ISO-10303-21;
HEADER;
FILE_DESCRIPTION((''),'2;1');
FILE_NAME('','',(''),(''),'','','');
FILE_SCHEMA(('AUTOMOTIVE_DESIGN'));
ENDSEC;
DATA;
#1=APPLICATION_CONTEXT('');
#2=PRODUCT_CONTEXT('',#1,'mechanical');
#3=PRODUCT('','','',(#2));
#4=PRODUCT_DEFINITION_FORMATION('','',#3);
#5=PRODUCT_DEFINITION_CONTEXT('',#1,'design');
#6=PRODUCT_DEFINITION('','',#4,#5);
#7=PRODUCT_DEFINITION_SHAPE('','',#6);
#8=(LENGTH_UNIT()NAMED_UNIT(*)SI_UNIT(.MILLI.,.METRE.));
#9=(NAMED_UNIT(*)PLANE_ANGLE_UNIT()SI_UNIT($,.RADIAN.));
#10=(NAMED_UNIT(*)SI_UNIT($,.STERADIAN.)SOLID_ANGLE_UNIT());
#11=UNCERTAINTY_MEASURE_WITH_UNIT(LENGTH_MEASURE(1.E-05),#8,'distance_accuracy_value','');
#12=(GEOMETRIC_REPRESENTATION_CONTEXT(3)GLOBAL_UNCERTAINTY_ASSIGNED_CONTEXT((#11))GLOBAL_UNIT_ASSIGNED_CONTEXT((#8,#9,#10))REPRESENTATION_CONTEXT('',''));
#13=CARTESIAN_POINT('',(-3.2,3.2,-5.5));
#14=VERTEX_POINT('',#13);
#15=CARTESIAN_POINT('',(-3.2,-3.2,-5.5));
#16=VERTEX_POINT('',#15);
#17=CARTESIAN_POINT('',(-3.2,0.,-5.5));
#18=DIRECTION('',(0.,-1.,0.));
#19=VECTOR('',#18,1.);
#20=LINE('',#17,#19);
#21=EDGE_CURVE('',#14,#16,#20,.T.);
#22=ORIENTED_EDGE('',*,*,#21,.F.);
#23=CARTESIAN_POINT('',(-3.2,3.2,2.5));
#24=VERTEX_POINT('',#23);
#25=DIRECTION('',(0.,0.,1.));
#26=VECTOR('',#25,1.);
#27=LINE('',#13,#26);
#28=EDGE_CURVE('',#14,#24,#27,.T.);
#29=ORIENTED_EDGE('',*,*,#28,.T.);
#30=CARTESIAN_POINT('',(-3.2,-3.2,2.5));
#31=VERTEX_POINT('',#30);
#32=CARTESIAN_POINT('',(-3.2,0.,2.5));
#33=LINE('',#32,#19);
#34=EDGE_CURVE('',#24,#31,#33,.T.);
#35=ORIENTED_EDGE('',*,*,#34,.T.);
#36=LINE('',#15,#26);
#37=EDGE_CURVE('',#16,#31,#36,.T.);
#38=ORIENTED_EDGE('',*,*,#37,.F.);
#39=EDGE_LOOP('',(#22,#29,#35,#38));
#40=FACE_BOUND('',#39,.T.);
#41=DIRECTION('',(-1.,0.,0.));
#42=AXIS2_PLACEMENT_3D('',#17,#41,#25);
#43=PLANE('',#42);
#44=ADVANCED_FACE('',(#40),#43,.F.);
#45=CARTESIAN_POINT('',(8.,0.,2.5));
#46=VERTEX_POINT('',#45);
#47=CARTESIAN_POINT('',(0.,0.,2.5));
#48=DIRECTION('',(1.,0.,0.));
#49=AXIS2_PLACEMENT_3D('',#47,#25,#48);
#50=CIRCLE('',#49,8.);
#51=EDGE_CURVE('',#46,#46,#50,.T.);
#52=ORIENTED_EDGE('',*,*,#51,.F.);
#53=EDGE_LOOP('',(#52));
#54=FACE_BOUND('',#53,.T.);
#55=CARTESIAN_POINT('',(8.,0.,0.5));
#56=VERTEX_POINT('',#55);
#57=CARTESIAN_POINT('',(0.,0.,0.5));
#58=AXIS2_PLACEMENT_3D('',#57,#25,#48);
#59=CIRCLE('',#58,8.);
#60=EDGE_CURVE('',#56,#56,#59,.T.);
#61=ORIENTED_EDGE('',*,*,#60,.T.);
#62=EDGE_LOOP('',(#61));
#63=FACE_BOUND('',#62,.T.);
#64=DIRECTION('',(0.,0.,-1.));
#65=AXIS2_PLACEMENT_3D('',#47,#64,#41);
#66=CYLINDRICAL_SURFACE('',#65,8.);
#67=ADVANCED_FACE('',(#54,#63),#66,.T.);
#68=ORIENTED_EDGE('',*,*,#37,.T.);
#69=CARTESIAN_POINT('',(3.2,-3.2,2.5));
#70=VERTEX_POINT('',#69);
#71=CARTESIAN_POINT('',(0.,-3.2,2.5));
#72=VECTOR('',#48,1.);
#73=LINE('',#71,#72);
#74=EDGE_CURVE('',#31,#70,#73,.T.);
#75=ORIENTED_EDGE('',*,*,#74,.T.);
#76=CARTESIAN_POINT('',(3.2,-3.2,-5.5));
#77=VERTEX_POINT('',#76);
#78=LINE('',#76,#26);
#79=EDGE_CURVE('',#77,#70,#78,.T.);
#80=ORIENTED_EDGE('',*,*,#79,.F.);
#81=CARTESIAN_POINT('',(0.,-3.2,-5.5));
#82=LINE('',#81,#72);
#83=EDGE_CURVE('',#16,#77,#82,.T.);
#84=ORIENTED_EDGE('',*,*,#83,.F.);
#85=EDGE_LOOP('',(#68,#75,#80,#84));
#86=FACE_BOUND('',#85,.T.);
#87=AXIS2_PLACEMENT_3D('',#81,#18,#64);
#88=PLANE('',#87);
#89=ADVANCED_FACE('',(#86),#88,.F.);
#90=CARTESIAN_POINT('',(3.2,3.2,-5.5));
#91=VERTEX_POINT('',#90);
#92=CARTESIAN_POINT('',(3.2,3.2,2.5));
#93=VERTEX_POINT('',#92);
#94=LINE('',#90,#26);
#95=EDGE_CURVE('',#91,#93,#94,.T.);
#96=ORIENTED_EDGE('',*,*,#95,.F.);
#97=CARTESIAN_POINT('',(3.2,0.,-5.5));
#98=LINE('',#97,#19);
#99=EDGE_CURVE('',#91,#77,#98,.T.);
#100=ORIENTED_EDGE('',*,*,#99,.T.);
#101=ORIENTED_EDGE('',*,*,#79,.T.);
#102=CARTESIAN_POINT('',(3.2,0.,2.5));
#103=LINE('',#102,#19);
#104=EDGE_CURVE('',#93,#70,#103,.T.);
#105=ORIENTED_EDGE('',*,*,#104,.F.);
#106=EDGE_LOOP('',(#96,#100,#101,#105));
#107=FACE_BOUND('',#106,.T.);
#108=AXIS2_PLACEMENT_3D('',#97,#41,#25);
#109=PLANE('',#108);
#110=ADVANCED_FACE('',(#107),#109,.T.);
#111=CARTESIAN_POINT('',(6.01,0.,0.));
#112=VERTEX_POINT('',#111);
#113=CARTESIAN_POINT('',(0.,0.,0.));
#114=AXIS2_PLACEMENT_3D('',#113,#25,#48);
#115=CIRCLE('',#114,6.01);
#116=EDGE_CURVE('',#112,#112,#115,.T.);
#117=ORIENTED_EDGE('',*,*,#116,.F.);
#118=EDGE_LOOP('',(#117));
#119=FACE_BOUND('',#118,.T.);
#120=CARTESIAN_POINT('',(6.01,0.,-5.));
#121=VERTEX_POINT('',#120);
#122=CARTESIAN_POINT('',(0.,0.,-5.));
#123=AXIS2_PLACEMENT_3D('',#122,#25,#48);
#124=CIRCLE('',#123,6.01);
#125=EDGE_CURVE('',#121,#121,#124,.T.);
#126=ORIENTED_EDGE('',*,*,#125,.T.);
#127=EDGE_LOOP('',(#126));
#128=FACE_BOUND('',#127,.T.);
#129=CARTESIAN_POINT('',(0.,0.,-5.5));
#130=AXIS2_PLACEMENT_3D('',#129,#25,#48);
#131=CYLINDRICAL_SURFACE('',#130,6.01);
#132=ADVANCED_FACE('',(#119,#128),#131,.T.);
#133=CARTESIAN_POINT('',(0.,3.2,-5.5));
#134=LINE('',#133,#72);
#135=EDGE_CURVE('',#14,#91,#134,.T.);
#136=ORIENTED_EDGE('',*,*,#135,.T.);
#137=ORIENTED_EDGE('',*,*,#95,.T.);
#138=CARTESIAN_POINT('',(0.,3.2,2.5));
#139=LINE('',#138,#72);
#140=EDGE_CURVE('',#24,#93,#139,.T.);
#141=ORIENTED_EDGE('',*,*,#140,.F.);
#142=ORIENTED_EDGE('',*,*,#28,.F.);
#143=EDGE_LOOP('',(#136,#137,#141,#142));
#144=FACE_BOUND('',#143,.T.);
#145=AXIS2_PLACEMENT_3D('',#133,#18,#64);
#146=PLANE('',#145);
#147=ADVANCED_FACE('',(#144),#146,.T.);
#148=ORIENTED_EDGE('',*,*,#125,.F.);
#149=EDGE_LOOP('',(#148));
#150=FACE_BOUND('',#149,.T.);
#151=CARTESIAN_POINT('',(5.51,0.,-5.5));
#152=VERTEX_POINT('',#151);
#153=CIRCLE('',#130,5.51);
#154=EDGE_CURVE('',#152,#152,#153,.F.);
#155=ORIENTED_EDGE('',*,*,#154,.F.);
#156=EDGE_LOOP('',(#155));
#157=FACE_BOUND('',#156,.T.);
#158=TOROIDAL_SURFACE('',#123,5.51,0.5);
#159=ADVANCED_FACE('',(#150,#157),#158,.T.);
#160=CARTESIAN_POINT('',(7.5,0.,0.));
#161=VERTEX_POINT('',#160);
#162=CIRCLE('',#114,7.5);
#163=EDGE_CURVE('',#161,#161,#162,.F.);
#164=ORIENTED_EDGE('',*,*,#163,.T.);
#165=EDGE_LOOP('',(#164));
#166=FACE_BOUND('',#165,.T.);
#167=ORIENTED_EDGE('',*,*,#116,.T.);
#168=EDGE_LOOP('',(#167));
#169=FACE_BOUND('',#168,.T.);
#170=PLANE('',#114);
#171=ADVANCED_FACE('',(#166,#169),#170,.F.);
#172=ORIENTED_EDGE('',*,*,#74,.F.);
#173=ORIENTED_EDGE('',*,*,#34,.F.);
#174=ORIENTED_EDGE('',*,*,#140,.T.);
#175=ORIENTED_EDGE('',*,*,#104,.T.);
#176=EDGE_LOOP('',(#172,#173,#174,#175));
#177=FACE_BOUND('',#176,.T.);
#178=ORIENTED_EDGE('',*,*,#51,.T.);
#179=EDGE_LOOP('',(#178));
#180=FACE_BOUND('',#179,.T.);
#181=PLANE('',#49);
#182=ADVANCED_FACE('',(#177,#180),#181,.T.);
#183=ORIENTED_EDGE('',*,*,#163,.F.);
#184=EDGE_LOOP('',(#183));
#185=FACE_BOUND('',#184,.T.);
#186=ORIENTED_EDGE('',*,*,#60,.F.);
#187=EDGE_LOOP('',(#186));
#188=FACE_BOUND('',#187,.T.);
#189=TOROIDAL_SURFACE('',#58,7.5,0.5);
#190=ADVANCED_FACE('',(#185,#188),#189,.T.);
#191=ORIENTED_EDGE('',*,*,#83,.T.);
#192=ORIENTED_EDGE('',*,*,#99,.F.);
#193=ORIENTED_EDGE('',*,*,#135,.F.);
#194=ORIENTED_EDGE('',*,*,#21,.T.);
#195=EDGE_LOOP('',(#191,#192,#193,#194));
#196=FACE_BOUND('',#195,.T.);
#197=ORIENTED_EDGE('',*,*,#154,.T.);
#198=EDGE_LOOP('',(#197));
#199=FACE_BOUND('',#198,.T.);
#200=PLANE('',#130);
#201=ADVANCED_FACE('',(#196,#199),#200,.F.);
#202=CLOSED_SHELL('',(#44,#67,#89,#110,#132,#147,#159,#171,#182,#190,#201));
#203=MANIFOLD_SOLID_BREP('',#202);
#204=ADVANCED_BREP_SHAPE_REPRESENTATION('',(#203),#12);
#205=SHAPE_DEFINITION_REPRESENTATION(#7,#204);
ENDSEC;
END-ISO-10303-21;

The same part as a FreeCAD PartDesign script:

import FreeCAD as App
import Part
import Sketcher

V = App.Vector


def edges_at(feature, points):
    """Names of the edges that pass closest to the given points."""
    edges = feature.Shape.Edges
    near = lambda p: min(range(len(edges)), key=lambda i: edges[i].distToShape(Part.Vertex(*p))[0])
    return sorted({f"Edge{near(p) + 1}" for p in points})


def add_polygon(sketch, points):
    """Adds a closed chain of lines whose ends are joined by coincident constraints."""
    first, n = sketch.GeometryCount, len(points)
    for a, b in zip(points, points[1:] + points[:1]):
        sketch.addGeometry(Part.LineSegment(App.Vector(*a, 0), App.Vector(*b, 0)), False)
    for i in range(n):
        sketch.addConstraint(Sketcher.Constraint("Coincident", first + i, 2, first + (i + 1) % n, 1))

doc = App.newDocument("Part")
body = doc.addObject("PartDesign::Body", "Body")

# Sketch on XY plane
sketch1 = doc.addObject("Sketcher::SketchObject", "Sketch")
body.addObject(sketch1)
sketch1.AttachmentSupport = (doc.XY_Plane, [""])
sketch1.MapMode = "FlatFace"
sketch1.addGeometry(Part.Circle(V(0, 0, 0), V(0, 0, 1), 6), False)  # 0
add_polygon(sketch1, [(3, -3), (-3, -3), (-3, 3), (3, 3)])  # lines 1-4
sketch1.addConstraint([
    Sketcher.Constraint("Horizontal", 1),
    Sketcher.Constraint("Vertical", 2),
    Sketcher.Constraint("Horizontal", 3),
    Sketcher.Constraint("Vertical", 4),
    Sketcher.Constraint("Coincident", 0, 3, -1, 1),
    Sketcher.Constraint("Symmetric", 1, 2, 3, 2, -1, 1),
    Sketcher.Constraint("Equal", 3, 2),
    Sketcher.Constraint("Diameter", 0, 12.02),
    Sketcher.Constraint("DistanceX", 1, 2, 1, 1, 6.4),
])
pad1 = doc.addObject("PartDesign::Pad", "Pad")
body.addObject(pad1)
pad1.Profile = sketch1
pad1.Length = 5.5
pad1.Reversed = True

# Sketch on XY plane
sketch2 = doc.addObject("Sketcher::SketchObject", "Sketch001")
body.addObject(sketch2)
sketch2.AttachmentSupport = (doc.XY_Plane, [""])
sketch2.MapMode = "FlatFace"
sketch2.AttachmentOffset = App.Placement(V(0, 0, 2.5), App.Rotation())
sketch2.addGeometry(Part.Circle(V(0, 0, 0), V(0, 0, 1), 8), False)  # 0
add_polygon(sketch2, [(-3, -3), (-3, 3), (3, 3), (3, -3)])  # lines 1-4
sketch2.addConstraint([
    Sketcher.Constraint("Vertical", 1),
    Sketcher.Constraint("Horizontal", 2),
    Sketcher.Constraint("Vertical", 3),
    Sketcher.Constraint("Horizontal", 4),
    Sketcher.Constraint("Coincident", 0, 3, -1, 1),
    Sketcher.Constraint("Symmetric", 1, 2, 3, 2, -1, 1),
    Sketcher.Constraint("Equal", 4, 1),
    Sketcher.Constraint("Diameter", 0, 16.0),
    Sketcher.Constraint("DistanceX", 2, 1, 2, 2, 6.4),
])
pad2 = doc.addObject("PartDesign::Pad", "Pad001")
body.addObject(pad2)
pad2.Profile = sketch2
pad2.Length = 2.5
pad2.Reversed = True
doc.recompute()

fillet = doc.addObject("PartDesign::Fillet", "Fillet")
body.addObject(fillet)
fillet.Base = (pad2, edges_at(pad2, [(-8, 0, 0), (-6.01, 0, -5.5)]))
fillet.Radius = 0.5

doc.recompute()
